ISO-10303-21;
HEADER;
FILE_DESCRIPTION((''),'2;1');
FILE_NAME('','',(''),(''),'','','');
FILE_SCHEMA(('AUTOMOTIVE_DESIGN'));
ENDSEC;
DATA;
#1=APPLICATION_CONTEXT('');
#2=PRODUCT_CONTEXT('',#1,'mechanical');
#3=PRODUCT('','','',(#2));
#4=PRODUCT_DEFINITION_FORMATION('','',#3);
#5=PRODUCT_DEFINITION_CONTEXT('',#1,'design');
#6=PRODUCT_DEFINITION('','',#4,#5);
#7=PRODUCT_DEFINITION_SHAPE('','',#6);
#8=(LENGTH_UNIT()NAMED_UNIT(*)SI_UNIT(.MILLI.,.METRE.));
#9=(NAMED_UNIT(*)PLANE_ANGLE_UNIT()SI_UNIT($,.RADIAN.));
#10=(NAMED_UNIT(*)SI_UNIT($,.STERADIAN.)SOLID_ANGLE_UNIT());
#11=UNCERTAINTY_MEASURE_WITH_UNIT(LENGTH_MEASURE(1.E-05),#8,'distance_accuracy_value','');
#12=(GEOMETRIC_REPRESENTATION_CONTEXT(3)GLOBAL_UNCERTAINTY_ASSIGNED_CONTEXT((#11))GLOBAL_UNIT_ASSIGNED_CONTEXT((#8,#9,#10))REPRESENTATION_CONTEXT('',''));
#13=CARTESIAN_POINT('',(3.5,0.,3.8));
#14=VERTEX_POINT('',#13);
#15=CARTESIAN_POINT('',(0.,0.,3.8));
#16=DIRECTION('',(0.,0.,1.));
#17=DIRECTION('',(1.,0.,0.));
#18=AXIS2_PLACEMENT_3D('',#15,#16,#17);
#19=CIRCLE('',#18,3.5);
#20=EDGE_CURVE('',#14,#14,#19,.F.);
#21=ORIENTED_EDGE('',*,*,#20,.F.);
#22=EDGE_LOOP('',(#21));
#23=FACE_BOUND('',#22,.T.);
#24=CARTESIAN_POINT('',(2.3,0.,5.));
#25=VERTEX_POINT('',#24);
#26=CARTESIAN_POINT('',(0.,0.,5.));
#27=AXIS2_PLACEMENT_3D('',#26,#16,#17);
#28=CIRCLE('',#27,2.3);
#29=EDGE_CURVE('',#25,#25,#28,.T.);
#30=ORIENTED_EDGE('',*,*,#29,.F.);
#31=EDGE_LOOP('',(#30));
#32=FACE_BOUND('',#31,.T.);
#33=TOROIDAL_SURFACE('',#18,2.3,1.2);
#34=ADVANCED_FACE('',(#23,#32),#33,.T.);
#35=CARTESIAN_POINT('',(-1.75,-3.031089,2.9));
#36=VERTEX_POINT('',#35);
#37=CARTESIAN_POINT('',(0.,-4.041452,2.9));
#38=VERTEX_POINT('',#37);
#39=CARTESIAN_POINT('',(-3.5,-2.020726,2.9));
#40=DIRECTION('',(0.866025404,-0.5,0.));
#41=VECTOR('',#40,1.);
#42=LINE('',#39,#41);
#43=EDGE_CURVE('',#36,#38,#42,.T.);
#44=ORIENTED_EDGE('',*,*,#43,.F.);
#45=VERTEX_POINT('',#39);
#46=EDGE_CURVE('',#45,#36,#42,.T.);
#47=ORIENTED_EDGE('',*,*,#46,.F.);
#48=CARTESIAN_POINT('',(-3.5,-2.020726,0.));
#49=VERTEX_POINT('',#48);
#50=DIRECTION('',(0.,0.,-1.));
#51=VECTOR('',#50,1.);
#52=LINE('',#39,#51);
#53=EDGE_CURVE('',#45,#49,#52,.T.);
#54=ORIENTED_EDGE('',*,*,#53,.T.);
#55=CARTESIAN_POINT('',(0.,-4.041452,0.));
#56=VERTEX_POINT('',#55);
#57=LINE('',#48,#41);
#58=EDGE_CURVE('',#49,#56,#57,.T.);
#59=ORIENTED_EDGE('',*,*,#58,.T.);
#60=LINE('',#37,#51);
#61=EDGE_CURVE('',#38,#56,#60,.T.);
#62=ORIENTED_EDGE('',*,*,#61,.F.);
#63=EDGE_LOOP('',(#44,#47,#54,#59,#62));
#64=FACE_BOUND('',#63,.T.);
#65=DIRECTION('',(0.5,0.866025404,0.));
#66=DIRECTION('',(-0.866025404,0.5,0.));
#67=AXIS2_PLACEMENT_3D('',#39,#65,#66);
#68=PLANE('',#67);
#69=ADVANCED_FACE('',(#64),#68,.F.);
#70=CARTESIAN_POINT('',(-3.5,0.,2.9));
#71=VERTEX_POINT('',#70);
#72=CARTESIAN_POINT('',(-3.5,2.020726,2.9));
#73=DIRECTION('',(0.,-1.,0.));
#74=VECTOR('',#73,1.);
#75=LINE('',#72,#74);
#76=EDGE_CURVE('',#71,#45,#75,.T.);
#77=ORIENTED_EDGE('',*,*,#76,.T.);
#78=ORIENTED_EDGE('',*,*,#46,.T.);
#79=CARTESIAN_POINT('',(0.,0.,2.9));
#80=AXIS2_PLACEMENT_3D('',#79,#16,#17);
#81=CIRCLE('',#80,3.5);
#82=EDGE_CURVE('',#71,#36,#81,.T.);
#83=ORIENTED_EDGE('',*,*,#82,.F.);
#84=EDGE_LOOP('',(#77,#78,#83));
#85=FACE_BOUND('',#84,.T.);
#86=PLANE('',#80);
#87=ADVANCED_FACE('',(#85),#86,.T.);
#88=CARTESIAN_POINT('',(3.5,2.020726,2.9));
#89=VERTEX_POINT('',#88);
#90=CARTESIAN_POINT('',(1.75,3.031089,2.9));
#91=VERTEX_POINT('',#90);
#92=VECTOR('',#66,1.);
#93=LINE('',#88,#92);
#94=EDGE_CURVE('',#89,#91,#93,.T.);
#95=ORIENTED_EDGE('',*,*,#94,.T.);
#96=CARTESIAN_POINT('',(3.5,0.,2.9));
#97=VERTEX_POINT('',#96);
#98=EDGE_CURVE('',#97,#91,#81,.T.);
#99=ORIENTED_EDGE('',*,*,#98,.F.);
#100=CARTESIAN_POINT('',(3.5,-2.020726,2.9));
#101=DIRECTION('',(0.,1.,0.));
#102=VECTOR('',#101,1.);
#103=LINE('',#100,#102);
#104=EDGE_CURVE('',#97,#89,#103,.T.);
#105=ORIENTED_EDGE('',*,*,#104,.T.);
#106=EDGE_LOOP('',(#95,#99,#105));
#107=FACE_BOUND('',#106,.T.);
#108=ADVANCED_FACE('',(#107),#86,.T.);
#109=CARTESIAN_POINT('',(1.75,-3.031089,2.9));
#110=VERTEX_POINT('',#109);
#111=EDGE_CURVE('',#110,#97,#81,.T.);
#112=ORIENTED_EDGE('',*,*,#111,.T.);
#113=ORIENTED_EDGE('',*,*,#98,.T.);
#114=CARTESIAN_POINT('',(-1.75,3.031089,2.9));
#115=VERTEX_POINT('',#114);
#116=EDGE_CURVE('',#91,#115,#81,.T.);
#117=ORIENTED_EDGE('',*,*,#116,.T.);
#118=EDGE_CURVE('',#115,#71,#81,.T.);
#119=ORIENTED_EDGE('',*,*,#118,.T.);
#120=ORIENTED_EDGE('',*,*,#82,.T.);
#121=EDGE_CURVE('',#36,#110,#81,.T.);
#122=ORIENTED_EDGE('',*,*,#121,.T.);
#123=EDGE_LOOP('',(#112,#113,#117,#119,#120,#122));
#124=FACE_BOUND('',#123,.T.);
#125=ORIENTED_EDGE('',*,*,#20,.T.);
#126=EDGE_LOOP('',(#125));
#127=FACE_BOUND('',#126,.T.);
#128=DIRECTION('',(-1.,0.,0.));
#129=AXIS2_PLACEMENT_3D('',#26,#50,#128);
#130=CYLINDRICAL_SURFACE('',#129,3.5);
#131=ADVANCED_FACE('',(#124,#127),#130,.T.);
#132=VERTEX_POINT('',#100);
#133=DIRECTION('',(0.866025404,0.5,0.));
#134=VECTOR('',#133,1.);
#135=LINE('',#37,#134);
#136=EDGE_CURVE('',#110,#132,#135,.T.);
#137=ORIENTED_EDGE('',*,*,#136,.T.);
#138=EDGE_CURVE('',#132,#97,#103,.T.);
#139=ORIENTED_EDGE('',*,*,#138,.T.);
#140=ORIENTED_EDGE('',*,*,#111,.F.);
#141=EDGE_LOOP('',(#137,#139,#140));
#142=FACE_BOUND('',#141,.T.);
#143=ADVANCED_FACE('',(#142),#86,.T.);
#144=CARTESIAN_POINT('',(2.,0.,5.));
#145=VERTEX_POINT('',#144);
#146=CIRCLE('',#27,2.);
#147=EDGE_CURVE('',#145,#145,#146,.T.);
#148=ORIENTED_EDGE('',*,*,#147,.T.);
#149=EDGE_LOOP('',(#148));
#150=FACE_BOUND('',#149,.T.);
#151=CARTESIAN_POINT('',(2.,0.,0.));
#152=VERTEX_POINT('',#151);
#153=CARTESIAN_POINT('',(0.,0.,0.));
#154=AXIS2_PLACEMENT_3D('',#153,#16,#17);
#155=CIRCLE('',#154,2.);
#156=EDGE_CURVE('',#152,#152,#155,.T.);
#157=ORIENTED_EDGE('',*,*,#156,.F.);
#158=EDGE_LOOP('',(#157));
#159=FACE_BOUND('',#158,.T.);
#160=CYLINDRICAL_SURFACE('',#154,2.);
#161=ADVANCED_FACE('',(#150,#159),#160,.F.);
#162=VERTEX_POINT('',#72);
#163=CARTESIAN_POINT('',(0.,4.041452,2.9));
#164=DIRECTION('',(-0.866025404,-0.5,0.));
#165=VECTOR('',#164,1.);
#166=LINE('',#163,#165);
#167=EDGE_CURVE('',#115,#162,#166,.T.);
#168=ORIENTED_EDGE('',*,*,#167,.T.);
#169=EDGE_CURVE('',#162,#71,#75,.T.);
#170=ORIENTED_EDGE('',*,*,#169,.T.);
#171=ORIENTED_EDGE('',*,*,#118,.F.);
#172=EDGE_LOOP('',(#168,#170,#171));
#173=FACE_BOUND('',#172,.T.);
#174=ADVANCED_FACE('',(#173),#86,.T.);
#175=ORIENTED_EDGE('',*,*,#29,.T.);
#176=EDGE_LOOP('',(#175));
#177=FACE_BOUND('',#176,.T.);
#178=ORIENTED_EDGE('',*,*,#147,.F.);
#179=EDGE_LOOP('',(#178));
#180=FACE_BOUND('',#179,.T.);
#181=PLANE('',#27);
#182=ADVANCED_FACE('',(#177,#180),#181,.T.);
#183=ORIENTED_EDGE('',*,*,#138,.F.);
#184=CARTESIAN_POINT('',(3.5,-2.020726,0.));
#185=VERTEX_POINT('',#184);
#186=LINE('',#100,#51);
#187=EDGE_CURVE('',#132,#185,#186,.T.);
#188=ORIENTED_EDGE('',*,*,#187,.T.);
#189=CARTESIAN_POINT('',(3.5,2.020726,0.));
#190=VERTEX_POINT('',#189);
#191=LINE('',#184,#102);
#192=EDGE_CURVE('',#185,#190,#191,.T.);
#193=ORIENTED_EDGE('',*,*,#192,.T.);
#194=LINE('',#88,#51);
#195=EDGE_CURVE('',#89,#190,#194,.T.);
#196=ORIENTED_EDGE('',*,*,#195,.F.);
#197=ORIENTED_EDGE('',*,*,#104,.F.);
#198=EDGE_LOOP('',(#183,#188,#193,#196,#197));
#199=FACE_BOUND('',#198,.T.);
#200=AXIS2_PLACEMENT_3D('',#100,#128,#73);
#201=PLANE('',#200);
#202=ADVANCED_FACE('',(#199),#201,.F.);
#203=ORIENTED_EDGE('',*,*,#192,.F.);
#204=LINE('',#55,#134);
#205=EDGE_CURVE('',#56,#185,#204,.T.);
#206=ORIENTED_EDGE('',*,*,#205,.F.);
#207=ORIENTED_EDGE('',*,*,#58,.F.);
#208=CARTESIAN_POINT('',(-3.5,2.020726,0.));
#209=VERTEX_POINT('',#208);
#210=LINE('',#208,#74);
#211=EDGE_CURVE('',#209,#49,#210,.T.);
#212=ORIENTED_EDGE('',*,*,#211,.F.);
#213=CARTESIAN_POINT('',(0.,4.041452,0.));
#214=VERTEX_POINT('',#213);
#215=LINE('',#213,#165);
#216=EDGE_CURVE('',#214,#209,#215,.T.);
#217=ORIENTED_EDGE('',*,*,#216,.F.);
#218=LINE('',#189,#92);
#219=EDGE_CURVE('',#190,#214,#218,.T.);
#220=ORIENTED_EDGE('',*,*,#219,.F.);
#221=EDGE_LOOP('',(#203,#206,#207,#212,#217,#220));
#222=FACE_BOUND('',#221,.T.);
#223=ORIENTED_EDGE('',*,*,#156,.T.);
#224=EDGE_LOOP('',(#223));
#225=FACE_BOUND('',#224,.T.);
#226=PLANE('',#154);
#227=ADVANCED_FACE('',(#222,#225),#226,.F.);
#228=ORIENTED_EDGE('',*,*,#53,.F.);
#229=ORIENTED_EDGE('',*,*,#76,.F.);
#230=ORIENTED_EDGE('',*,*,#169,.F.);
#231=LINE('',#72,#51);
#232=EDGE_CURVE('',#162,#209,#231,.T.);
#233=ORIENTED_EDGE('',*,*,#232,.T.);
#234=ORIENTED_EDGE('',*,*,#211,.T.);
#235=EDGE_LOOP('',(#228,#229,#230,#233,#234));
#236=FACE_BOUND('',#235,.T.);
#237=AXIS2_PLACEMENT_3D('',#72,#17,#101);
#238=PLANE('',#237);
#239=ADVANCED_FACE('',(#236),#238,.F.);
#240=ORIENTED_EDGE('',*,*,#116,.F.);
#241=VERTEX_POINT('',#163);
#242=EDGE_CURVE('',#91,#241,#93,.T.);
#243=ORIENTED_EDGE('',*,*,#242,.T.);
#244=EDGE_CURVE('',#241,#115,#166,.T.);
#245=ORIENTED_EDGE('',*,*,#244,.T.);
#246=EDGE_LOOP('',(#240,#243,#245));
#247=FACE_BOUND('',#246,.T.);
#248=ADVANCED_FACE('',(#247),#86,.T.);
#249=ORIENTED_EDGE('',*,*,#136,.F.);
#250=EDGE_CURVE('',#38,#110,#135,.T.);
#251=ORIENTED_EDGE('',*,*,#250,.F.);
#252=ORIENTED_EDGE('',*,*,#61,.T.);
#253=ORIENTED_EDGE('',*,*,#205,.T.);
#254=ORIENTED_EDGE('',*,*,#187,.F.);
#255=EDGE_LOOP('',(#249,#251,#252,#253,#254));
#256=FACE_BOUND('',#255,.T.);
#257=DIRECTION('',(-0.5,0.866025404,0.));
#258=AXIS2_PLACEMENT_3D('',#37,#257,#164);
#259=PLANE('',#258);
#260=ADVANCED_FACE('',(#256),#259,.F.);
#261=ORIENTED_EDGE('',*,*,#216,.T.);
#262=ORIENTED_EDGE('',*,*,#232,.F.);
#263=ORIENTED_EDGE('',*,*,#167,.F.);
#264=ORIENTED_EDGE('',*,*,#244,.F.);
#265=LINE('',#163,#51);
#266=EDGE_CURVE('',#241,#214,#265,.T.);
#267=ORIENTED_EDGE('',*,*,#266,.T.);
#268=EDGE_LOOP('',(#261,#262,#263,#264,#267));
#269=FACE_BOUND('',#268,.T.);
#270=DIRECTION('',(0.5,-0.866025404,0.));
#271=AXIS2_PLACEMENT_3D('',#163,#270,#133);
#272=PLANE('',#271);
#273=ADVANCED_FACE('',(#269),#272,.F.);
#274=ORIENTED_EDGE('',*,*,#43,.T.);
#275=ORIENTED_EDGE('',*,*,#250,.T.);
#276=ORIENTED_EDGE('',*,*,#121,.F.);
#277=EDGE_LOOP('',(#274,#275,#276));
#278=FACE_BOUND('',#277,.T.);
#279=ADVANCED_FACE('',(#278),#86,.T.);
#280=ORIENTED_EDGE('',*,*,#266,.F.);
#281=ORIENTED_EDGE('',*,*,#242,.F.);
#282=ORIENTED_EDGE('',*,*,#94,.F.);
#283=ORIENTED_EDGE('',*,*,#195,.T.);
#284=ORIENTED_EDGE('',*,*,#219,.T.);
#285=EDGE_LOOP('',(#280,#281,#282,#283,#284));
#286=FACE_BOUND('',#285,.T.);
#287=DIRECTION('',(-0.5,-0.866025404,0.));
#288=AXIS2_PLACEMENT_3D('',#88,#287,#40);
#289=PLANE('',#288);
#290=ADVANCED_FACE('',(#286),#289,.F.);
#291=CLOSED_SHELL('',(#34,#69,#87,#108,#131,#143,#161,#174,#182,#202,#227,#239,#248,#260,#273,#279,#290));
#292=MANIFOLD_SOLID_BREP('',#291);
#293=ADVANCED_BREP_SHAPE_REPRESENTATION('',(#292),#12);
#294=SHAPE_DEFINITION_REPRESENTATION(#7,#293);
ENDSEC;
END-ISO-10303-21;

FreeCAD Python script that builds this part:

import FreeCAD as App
import Part
import Sketcher
Q = App.Units.Quantity


def edges_at(feature, points):
    """Names of the edges that pass closest to the given points."""
    edges = feature.Shape.Edges
    near = lambda p: min(range(len(edges)), key=lambda i: edges[i].distToShape(Part.Vertex(*p))[0])
    return sorted({f"Edge{near(p) + 1}" for p in points})

doc = App.newDocument("Part")
body = doc.addObject("PartDesign::Body", "Body")

# Sketch on XY plane
sketch1 = doc.addObject("Sketcher::SketchObject", "Sketch")
body.addObject(sketch1)
sketch1.AttachmentSupport = (doc.XY_Plane, [""])
sketch1.MapMode = "FlatFace"
sketch1.addGeometry([
    Part.LineSegment(App.Vector(3.5, -2, 0), App.Vector(3.5, 2, 0)),  # 0
    Part.LineSegment(App.Vector(3.5, 2, 0), App.Vector(0, 4, 0)),  # 1
    Part.LineSegment(App.Vector(0, 4, 0), App.Vector(-3.5, 2, 0)),  # 2
    Part.LineSegment(App.Vector(-3.5, 2, 0), App.Vector(-3.5, -2, 0)),  # 3
    Part.LineSegment(App.Vector(-3.5, -2, 0), App.Vector(0, -4, 0)),  # 4
    Part.LineSegment(App.Vector(0, -4, 0), App.Vector(3.5, -2, 0)),  # 5
], False)
sketch1.addConstraint([
    Sketcher.Constraint("Coincident", 0, 2, 1, 1),
    Sketcher.Constraint("Coincident", 1, 2, 2, 1),
    Sketcher.Constraint("Coincident", 2, 2, 3, 1),
    Sketcher.Constraint("Coincident", 3, 2, 4, 1),
    Sketcher.Constraint("Coincident", 4, 2, 5, 1),
    Sketcher.Constraint("Coincident", 5, 2, 0, 1),
    Sketcher.Constraint("Vertical", 0),
    Sketcher.Constraint("Vertical", 3),
    Sketcher.Constraint("Symmetric", 0, 2, 3, 2, -1, 1),
    Sketcher.Constraint("Symmetric", 1, 2, 4, 2, -1, 1),
    Sketcher.Constraint("PointOnObject", 1, 2, -2),
    Sketcher.Constraint("Parallel", 2, 5),
    Sketcher.Constraint("Horizontal", 0, 2, 2, 2),
    Sketcher.Constraint("Angle", 1, Q("150 deg")),
    Sketcher.Constraint("DistanceX", 2, 2, 0, 2, 7.0),
    Sketcher.Constraint("DistanceY", 0, 1, 0, 2, 4.041452),
])
pad1 = doc.addObject("PartDesign::Pad", "Pad")
body.addObject(pad1)
pad1.Profile = sketch1
pad1.Length = 2.9

# Sketch on XY plane
sketch2 = doc.addObject("Sketcher::SketchObject", "Sketch001")
body.addObject(sketch2)
sketch2.AttachmentSupport = (doc.XY_Plane, [""])
sketch2.MapMode = "FlatFace"
sketch2.AttachmentOffset = App.Placement(App.Vector(0, 0, 2.9), App.Rotation())
sketch2.addGeometry(Part.Circle(App.Vector(0, 0, 0), App.Vector(0, 0, 1), 3.5), False)
sketch2.addConstraint([
    Sketcher.Constraint("Coincident", 0, 3, -1, 1),
    Sketcher.Constraint("Diameter", 0, 7.0),
])
pad2 = doc.addObject("PartDesign::Pad", "Pad001")
body.addObject(pad2)
pad2.Profile = sketch2
pad2.Length = 2.1

# Sketch on XY plane
sketch3 = doc.addObject("Sketcher::SketchObject", "Sketch002")
body.addObject(sketch3)
sketch3.AttachmentSupport = (doc.XY_Plane, [""])
sketch3.MapMode = "FlatFace"
sketch3.AttachmentOffset = App.Placement(App.Vector(0, 0, 5), App.Rotation())
sketch3.addGeometry(Part.Circle(App.Vector(0, 0, 0), App.Vector(0, 0, 1), 2), False)
sketch3.addConstraint([
    Sketcher.Constraint("Coincident", 0, 3, -1, 1),
    Sketcher.Constraint("Diameter", 0, 4.0),
])
pocket1 = doc.addObject("PartDesign::Pocket", "Pocket")
body.addObject(pocket1)
pocket1.Profile = sketch3
pocket1.Type = "ThroughAll"
doc.recompute()

fillet = doc.addObject("PartDesign::Fillet", "Fillet")
body.addObject(fillet)
fillet.Base = (pocket1, edges_at(pocket1, [(-3.5, 0, 5)]))
fillet.Radius = 1.2

doc.recompute()
